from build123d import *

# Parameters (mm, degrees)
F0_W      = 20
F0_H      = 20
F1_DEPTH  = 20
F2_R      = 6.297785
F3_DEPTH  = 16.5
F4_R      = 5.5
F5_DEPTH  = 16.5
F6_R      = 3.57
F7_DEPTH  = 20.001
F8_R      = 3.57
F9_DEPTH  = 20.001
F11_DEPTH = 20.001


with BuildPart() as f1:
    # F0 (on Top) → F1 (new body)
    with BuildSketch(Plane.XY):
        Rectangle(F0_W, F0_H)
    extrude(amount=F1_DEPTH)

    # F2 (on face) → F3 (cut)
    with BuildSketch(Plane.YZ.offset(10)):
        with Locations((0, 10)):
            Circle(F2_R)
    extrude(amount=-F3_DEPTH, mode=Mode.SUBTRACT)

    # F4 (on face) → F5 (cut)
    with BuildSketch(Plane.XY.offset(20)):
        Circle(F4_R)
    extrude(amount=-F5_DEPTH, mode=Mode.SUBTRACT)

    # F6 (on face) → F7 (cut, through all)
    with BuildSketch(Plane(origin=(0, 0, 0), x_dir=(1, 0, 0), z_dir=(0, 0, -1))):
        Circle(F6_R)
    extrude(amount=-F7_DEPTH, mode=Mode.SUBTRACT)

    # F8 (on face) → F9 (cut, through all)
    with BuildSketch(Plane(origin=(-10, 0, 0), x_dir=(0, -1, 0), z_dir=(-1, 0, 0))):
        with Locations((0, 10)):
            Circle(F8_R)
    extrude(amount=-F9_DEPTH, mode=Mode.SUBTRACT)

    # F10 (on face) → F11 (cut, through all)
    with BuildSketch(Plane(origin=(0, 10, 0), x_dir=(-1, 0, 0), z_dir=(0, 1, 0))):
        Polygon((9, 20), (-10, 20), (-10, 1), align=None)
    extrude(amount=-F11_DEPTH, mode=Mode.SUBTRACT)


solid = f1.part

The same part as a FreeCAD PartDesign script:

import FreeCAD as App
import Part
import Sketcher
from FreeCAD import Vector

doc = App.newDocument("Part")
body = doc.addObject("PartDesign::Body", "Body")

# Sketch on XY plane
sketch1 = body.newObject("Sketcher::SketchObject", "Sketch")
sketch1.AttachmentSupport = (doc.getObject("XY_Plane"), [""])
sketch1.MapMode = "FlatFace"
sketch1.addGeometry(Part.LineSegment(Vector(-10, 10, 0), Vector(-10, -10, 0)), False)
sketch1.addGeometry(Part.LineSegment(Vector(-10, -10, 0), Vector(10, -10, 0)), False)
sketch1.addGeometry(Part.LineSegment(Vector(10, -10, 0), Vector(10, 10, 0)), False)
sketch1.addGeometry(Part.LineSegment(Vector(10, 10, 0), Vector(-10, 10, 0)), False)
sketch1.addConstraint(Sketcher.Constraint("Coincident", 0, 2, 1, 1))
sketch1.addConstraint(Sketcher.Constraint("Coincident", 1, 2, 2, 1))
sketch1.addConstraint(Sketcher.Constraint("Coincident", 2, 2, 3, 1))
sketch1.addConstraint(Sketcher.Constraint("Coincident", 3, 2, 0, 1))
sketch1.addConstraint(Sketcher.Constraint("Vertical", 0))
sketch1.addConstraint(Sketcher.Constraint("Horizontal", 1))
sketch1.addConstraint(Sketcher.Constraint("Vertical", 2))
sketch1.addConstraint(Sketcher.Constraint("Horizontal", 3))
sketch1.addConstraint(Sketcher.Constraint("Symmetric", 0, 2, 2, 2, -1, 1))
sketch1.addConstraint(Sketcher.Constraint("Equal", 3, 0))
sketch1.addConstraint(Sketcher.Constraint("DistanceX", 1, 1, 1, 2, 20.0))
pad1 = body.newObject("PartDesign::Pad", "Pad")
pad1.Profile = sketch1
pad1.Length = 20

# Sketch on YZ plane
sketch2 = body.newObject("Sketcher::SketchObject", "Sketch001")
sketch2.AttachmentSupport = (doc.getObject("YZ_Plane"), [""])
sketch2.MapMode = "FlatFace"
sketch2.AttachmentOffset = App.Placement(Vector(0, 0, 10), App.Rotation())
sketch2.addGeometry(Part.Circle(Vector(0, 10, 0), Vector(0, 0, 1), 6), False)
sketch2.addConstraint(Sketcher.Constraint("PointOnObject", 0, 3, -2))
sketch2.addConstraint(Sketcher.Constraint("DistanceY", -1, 1, 0, 3, 10.0))
sketch2.addConstraint(Sketcher.Constraint("Diameter", 0, 12.59557))
pocket1 = body.newObject("PartDesign::Pocket", "Pocket")
pocket1.Profile = sketch2
pocket1.Length = 16.5

# Sketch on XY plane
sketch3 = body.newObject("Sketcher::SketchObject", "Sketch002")
sketch3.AttachmentSupport = (doc.getObject("XY_Plane"), [""])
sketch3.MapMode = "FlatFace"
sketch3.AttachmentOffset = App.Placement(Vector(0, 0, 20), App.Rotation())
sketch3.addGeometry(Part.Circle(Vector(0, 0, 0), Vector(0, 0, 1), 6), False)
sketch3.addConstraint(Sketcher.Constraint("Coincident", 0, 3, -1, 1))
sketch3.addConstraint(Sketcher.Constraint("Diameter", 0, 11.0))
pocket2 = body.newObject("PartDesign::Pocket", "Pocket001")
pocket2.Profile = sketch3
pocket2.Length = 16.5

# Sketch on XY plane
sketch4 = body.newObject("Sketcher::SketchObject", "Sketch003")
sketch4.AttachmentSupport = (doc.getObject("XY_Plane"), [""])
sketch4.MapMode = "FlatFace"
sketch4.addGeometry(Part.Circle(Vector(0, 0, 0), Vector(0, 0, 1), 3.6), False)
sketch4.addConstraint(Sketcher.Constraint("Coincident", 0, 3, -1, 1))
sketch4.addConstraint(Sketcher.Constraint("Diameter", 0, 7.14))
pocket3 = body.newObject("PartDesign::Pocket", "Pocket002")
pocket3.Profile = sketch4
pocket3.Type = "ThroughAll"
pocket3.Reversed = True

# Sketch on YZ plane
sketch5 = body.newObject("Sketcher::SketchObject", "Sketch004")
sketch5.AttachmentSupport = (doc.getObject("YZ_Plane"), [""])
sketch5.MapMode = "FlatFace"
sketch5.AttachmentOffset = App.Placement(Vector(0, 0, -10), App.Rotation())
sketch5.addGeometry(Part.Circle(Vector(0, 10, 0), Vector(0, 0, 1), 3.6), False)
sketch5.addConstraint(Sketcher.Constraint("PointOnObject", 0, 3, -2))
sketch5.addConstraint(Sketcher.Constraint("Diameter", 0, 7.14))
sketch5.addConstraint(Sketcher.Constraint("DistanceY", -1, 1, 0, 3, 10.0))
pocket4 = body.newObject("PartDesign::Pocket", "Pocket003")
pocket4.Profile = sketch5
pocket4.Type = "ThroughAll"
pocket4.Reversed = True

# Sketch on XZ plane
sketch6 = body.newObject("Sketcher::SketchObject", "Sketch005")
sketch6.AttachmentSupport = (doc.getObject("XZ_Plane"), [""])
sketch6.MapMode = "FlatFace"
sketch6.AttachmentOffset = App.Placement(Vector(0, 0, -10), App.Rotation())
sketch6.addGeometry(Part.LineSegment(Vector(-9, 20, 0), Vector(10, 20, 0)), False)
sketch6.addGeometry(Part.LineSegment(Vector(10, 20, 0), Vector(10, 1, 0)), False)
sketch6.addGeometry(Part.LineSegment(Vector(10, 1, 0), Vector(-9, 20, 0)), False)
sketch6.addConstraint(Sketcher.Constraint("Coincident", 0, 2, 1, 1))
sketch6.addConstraint(Sketcher.Constraint("Coincident", 1, 2, 2, 1))
sketch6.addConstraint(Sketcher.Constraint("Coincident", 2, 2, 0, 1))
sketch6.addConstraint(Sketcher.Constraint("Horizontal", 0))
sketch6.addConstraint(Sketcher.Constraint("Vertical", 1))
sketch6.addConstraint(Sketcher.Constraint("Equal", 0, 1))
sketch6.addConstraint(Sketcher.Constraint("DistanceX", 0, 1, 0, 2, 19.0))
sketch6.addConstraint(Sketcher.Constraint("DistanceX", -1, 1, 0, 2, 10.0))
sketch6.addConstraint(Sketcher.Constraint("DistanceY", -1, 1, 0, 2, 20.0))
pocket5 = body.newObject("PartDesign::Pocket", "Pocket004")
pocket5.Profile = sketch6
pocket5.Type = "ThroughAll"
pocket5.Reversed = True

doc.recompute()
